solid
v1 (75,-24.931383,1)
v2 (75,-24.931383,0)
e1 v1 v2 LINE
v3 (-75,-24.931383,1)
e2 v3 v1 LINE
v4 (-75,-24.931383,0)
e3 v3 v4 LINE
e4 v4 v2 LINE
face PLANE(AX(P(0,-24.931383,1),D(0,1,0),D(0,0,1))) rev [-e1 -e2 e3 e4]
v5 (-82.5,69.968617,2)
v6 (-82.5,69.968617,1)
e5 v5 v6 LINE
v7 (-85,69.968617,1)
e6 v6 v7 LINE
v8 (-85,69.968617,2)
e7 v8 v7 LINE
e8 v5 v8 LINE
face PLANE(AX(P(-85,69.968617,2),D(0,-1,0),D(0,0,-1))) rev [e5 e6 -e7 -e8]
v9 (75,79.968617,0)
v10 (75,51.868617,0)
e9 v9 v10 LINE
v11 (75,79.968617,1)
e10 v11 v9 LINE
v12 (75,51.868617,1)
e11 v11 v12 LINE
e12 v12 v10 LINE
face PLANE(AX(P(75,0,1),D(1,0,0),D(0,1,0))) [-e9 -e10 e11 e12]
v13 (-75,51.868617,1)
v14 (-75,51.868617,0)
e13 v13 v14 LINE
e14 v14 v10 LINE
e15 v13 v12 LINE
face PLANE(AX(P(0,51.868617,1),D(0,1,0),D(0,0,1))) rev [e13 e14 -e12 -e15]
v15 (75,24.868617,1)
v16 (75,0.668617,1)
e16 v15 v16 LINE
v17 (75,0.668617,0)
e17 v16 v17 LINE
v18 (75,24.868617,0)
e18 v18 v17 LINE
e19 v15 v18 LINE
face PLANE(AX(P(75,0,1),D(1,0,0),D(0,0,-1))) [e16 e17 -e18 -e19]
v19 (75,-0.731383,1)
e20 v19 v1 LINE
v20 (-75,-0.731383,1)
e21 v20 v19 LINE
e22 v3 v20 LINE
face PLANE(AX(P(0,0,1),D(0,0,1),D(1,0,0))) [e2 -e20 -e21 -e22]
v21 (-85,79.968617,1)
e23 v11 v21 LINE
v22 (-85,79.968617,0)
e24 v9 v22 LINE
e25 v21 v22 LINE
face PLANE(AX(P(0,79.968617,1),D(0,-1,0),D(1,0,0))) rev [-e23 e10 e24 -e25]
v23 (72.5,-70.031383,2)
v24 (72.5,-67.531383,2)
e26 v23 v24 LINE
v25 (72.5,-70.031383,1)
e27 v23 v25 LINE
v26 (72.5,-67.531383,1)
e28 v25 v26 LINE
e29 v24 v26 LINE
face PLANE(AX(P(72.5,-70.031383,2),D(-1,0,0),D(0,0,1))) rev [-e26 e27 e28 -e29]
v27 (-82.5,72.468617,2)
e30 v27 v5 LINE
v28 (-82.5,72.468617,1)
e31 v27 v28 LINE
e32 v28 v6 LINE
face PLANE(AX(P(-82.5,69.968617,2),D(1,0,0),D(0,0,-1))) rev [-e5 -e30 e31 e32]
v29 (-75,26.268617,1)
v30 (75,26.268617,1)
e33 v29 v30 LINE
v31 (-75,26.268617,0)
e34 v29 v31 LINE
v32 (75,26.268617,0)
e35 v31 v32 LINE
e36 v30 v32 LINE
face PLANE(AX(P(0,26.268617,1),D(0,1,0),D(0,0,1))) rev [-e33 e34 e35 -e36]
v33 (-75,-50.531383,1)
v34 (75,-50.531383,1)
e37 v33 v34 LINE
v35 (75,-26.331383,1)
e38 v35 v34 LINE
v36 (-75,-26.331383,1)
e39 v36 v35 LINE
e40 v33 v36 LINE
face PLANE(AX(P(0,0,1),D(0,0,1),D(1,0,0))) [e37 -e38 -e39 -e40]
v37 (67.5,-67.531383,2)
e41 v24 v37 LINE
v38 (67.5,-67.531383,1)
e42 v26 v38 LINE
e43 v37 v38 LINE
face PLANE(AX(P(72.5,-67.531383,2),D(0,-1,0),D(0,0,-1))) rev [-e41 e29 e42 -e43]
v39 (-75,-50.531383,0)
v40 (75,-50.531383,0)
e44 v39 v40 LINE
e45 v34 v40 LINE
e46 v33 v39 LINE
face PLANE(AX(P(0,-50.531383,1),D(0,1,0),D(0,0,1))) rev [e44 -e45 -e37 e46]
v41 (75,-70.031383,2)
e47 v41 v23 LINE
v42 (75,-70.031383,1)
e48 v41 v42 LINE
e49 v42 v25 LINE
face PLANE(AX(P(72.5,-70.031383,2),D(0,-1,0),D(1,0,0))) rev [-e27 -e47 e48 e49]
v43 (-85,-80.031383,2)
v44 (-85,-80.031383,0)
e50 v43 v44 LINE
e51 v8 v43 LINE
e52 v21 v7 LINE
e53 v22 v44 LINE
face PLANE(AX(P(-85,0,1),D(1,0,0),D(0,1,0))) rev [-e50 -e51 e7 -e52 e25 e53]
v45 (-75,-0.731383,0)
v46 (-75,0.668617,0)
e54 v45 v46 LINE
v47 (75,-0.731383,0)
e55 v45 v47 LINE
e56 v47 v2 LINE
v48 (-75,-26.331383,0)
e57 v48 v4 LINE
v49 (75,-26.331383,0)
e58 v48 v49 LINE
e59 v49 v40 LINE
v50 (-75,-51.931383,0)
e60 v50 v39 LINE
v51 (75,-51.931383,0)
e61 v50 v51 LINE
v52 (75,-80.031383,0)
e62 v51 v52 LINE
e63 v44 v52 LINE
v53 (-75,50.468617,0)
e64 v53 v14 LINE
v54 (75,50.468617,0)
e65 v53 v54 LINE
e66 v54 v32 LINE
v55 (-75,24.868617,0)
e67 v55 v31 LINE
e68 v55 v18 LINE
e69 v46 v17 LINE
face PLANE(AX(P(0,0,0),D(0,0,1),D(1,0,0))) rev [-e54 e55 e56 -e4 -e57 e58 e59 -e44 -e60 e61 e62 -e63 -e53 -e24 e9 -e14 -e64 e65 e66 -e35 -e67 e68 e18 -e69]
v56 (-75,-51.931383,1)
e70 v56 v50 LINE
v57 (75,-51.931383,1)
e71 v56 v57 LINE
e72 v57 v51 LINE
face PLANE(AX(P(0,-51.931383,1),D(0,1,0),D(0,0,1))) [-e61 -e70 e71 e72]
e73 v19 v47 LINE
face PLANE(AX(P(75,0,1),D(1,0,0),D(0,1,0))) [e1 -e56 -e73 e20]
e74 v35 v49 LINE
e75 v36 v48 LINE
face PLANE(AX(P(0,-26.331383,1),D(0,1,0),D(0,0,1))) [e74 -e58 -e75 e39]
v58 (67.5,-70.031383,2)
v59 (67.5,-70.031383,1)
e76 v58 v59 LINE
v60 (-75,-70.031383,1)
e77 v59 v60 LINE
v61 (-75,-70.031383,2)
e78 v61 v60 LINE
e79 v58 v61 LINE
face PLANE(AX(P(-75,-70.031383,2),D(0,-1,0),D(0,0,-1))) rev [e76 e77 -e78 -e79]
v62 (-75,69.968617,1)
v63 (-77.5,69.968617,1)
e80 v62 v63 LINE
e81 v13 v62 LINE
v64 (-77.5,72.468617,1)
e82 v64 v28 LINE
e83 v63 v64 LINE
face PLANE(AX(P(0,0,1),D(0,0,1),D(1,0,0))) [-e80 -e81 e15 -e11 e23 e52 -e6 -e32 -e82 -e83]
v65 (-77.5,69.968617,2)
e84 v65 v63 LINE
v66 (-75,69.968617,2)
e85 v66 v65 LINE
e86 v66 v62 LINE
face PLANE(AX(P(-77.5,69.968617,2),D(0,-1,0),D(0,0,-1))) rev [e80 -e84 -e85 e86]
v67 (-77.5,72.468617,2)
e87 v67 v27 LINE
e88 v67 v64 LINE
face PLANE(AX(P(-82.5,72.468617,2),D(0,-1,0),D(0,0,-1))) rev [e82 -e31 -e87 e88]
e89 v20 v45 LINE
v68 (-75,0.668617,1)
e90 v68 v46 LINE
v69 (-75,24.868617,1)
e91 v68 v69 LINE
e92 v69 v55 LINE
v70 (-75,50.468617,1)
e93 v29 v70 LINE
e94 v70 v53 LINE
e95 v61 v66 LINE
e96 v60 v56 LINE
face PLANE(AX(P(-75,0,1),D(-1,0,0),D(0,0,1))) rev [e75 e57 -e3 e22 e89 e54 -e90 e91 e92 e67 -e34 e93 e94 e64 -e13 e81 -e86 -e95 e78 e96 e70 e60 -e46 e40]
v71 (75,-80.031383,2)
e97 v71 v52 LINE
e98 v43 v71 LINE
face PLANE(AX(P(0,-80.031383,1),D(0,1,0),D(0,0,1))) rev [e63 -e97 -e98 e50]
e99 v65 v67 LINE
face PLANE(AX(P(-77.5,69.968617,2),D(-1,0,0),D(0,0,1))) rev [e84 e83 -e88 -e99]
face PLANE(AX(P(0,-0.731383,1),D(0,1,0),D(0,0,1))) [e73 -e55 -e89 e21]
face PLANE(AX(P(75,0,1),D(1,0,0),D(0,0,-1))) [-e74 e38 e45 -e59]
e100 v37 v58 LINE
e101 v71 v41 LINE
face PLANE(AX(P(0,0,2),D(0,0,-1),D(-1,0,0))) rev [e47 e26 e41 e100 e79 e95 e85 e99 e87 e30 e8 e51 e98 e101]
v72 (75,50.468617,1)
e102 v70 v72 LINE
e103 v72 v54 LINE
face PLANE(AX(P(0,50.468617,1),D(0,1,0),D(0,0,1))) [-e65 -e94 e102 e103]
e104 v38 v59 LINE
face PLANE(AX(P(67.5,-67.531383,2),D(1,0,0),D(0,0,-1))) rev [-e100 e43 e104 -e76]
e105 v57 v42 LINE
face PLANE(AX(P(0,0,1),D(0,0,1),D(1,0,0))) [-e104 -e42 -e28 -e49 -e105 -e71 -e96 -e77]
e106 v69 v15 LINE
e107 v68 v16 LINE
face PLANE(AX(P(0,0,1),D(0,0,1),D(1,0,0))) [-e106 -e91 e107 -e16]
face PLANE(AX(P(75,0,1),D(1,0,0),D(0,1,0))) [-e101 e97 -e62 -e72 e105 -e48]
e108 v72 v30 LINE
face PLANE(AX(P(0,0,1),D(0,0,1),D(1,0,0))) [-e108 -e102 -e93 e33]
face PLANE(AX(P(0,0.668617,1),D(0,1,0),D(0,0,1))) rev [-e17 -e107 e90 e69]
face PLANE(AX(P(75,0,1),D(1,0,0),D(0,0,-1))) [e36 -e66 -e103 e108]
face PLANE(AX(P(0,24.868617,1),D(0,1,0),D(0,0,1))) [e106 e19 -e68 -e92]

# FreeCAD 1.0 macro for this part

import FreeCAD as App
import Part
import Sketcher

V = App.Vector

doc = App.newDocument("Part")
body = doc.addObject("PartDesign::Body", "Body")

sketch1 = body.newObject("Sketcher::SketchObject", "Sketch")
sketch1.AttachmentSupport = (doc.getObject("XY_Plane"), [""])
sketch1.MapMode = "FlatFace"
sketch1.addGeometry([
    Part.LineSegment(V(-75, 50.5, 0), V(-75, 51.9, 0)),
    Part.LineSegment(V(-75, 51.9, 0), V(75, 51.9, 0)),
    Part.LineSegment(V(75, 51.9, 0), V(75, 80, 0)),
    Part.LineSegment(V(75, 80, 0), V(-85, 80, 0)),
    Part.LineSegment(V(-85, 80, 0), V(-85, -80, 0)),
    Part.LineSegment(V(-85, -80, 0), V(75, -80, 0)),
    Part.LineSegment(V(75, -80, 0), V(75, -51.9, 0)),
    Part.LineSegment(V(75, -51.9, 0), V(-75, -51.9, 0)),
    Part.LineSegment(V(-75, -51.9, 0), V(-75, -50.5, 0)),
    Part.LineSegment(V(-75, -50.5, 0), V(75, -50.5, 0)),
    Part.LineSegment(V(75, -50.5, 0), V(75, -26.3, 0)),
    Part.LineSegment(V(75, -26.3, 0), V(-75, -26.3, 0)),
    Part.LineSegment(V(-75, -26.3, 0), V(-75, -24.9, 0)),
    Part.LineSegment(V(-75, -24.9, 0), V(75, -24.9, 0)),
    Part.LineSegment(V(75, -24.9, 0), V(75, -0.7, 0)),
    Part.LineSegment(V(75, -0.7, 0), V(-75, -0.7, 0)),
    Part.LineSegment(V(-75, -0.7, 0), V(-75, 0.7, 0)),
    Part.LineSegment(V(-75, 0.7, 0), V(75, 0.7, 0)),
    Part.LineSegment(V(75, 0.7, 0), V(75, 24.9, 0)),
    Part.LineSegment(V(75, 24.9, 0), V(-75, 24.9, 0)),
    Part.LineSegment(V(-75, 24.9, 0), V(-75, 26.3, 0)),
    Part.LineSegment(V(-75, 26.3, 0), V(75, 26.3, 0)),
    Part.LineSegment(V(75, 26.3, 0), V(75, 50.5, 0)),
    Part.LineSegment(V(75, 50.5, 0), V(-75, 50.5, 0)),
], False)
sketch1.addConstraint([
    Sketcher.Constraint("Coincident", 0, 2, 1, 1),
    Sketcher.Constraint("Coincident", 1, 2, 2, 1),
    Sketcher.Constraint("Coincident", 2, 2, 3, 1),
    Sketcher.Constraint("Coincident", 3, 2, 4, 1),
    Sketcher.Constraint("Coincident", 4, 2, 5, 1),
    Sketcher.Constraint("Coincident", 5, 2, 6, 1),
    Sketcher.Constraint("Coincident", 6, 2, 7, 1),
    Sketcher.Constraint("Coincident", 7, 2, 8, 1),
    Sketcher.Constraint("Coincident", 8, 2, 9, 1),
    Sketcher.Constraint("Coincident", 9, 2, 10, 1),
    Sketcher.Constraint("Coincident", 10, 2, 11, 1),
    Sketcher.Constraint("Coincident", 11, 2, 12, 1),
    Sketcher.Constraint("Coincident", 12, 2, 13, 1),
    Sketcher.Constraint("Coincident", 13, 2, 14, 1),
    Sketcher.Constraint("Coincident", 14, 2, 15, 1),
    Sketcher.Constraint("Coincident", 15, 2, 16, 1),
    Sketcher.Constraint("Coincident", 16, 2, 17, 1),
    Sketcher.Constraint("Coincident", 17, 2, 18, 1),
    Sketcher.Constraint("Coincident", 18, 2, 19, 1),
    Sketcher.Constraint("Coincident", 19, 2, 20, 1),
    Sketcher.Constraint("Coincident", 20, 2, 21, 1),
    Sketcher.Constraint("Coincident", 21, 2, 22, 1),
    Sketcher.Constraint("Coincident", 22, 2, 23, 1),
    Sketcher.Constraint("Coincident", 23, 2, 0, 1),
    Sketcher.Constraint("Vertical", 0),
    Sketcher.Constraint("Horizontal", 1),
    Sketcher.Constraint("Vertical", 2),
    Sketcher.Constraint("Horizontal", 3),
    Sketcher.Constraint("Vertical", 4),
    Sketcher.Constraint("Horizontal", 5),
    Sketcher.Constraint("Vertical", 6),
    Sketcher.Constraint("Horizontal", 7),
    Sketcher.Constraint("Vertical", 8),
    Sketcher.Constraint("Horizontal", 9),
    Sketcher.Constraint("Vertical", 10),
    Sketcher.Constraint("Horizontal", 11),
    Sketcher.Constraint("Vertical", 12),
    Sketcher.Constraint("Horizontal", 13),
    Sketcher.Constraint("Vertical", 14),
    Sketcher.Constraint("Horizontal", 15),
    Sketcher.Constraint("Vertical", 16),
    Sketcher.Constraint("Horizontal", 17),
    Sketcher.Constraint("Vertical", 18),
    Sketcher.Constraint("Horizontal", 19),
    Sketcher.Constraint("Vertical", 20),
    Sketcher.Constraint("Horizontal", 21),
    Sketcher.Constraint("Vertical", 22),
    Sketcher.Constraint("Horizontal", 23),
    Sketcher.Constraint("Vertical", 2, 2, 5, 2),
    Sketcher.Constraint("Vertical", 0, 2, 7, 2),
    Sketcher.Constraint("Vertical", 6, 2, 9, 2),
    Sketcher.Constraint("Vertical", 8, 2, 11, 2),
    Sketcher.Constraint("Vertical", 10, 2, 13, 2),
    Sketcher.Constraint("Vertical", 12, 2, 15, 2),
    Sketcher.Constraint("Vertical", 14, 2, 17, 2),
    Sketcher.Constraint("Vertical", 16, 2, 19, 2),
    Sketcher.Constraint("Vertical", 18, 2, 21, 2),
    Sketcher.Constraint("Equal", 5, 4),
    Sketcher.Constraint("Equal", 2, 6),
    Sketcher.Constraint("Equal", 0, 8),
    Sketcher.Constraint("Equal", 8, 12),
    Sketcher.Constraint("Equal", 10, 14),
    Sketcher.Constraint("Equal", 12, 16),
    Sketcher.Constraint("Equal", 14, 18),
    Sketcher.Constraint("Equal", 16, 20),
    Sketcher.Constraint("Equal", 18, 22),
    Sketcher.Constraint("DistanceX", 1, 1, 1, 2, 150.0),
    Sketcher.Constraint("DistanceX", 3, 2, 3, 1, 160.0),
    Sketcher.Constraint("DistanceY", 0, 1, 0, 2, 1.4),
    Sketcher.Constraint("DistanceY", 2, 1, 2, 2, 28.1),
    Sketcher.Constraint("DistanceX", 0, 2, -1, 1, 75.0),
    Sketcher.Constraint("DistanceY", -1, 1, 0, 2, 51.868617),
])
pad1 = body.newObject("PartDesign::Pad", "Pad")
pad1.Profile = sketch1
pad1.Length = 1

sketch2 = body.newObject("Sketcher::SketchObject", "Sketch001")
sketch2.AttachmentSupport = (doc.getObject("XY_Plane"), [""])
sketch2.MapMode = "FlatFace"
sketch2.AttachmentOffset = App.Placement(V(0, 0, 1), App.Rotation())
sketch2.addGeometry([
    Part.LineSegment(V(-85, 70, 0), V(-85, -80, 0)),
    Part.LineSegment(V(-85, -80, 0), V(75, -80, 0)),
    Part.LineSegment(V(75, -80, 0), V(75, -70, 0)),
    Part.LineSegment(V(75, -70, 0), V(72.5, -70, 0)),
    Part.LineSegment(V(72.5, -70, 0), V(72.5, -67.5, 0)),
    Part.LineSegment(V(72.5, -67.5, 0), V(67.5, -67.5, 0)),
    Part.LineSegment(V(67.5, -67.5, 0), V(67.5, -70, 0)),
    Part.LineSegment(V(67.5, -70, 0), V(-75, -70, 0)),
    Part.LineSegment(V(-75, -70, 0), V(-75, 70, 0)),
    Part.LineSegment(V(-75, 70, 0), V(-77.5, 70, 0)),
    Part.LineSegment(V(-77.5, 70, 0), V(-77.5, 72.5, 0)),
    Part.LineSegment(V(-77.5, 72.5, 0), V(-82.5, 72.5, 0)),
    Part.LineSegment(V(-82.5, 72.5, 0), V(-82.5, 70, 0)),
    Part.LineSegment(V(-82.5, 70, 0), V(-85, 70, 0)),
], False)
sketch2.addConstraint([
    Sketcher.Constraint("Coincident", 0, 2, 1, 1),
    Sketcher.Constraint("Coincident", 1, 2, 2, 1),
    Sketcher.Constraint("Coincident", 2, 2, 3, 1),
    Sketcher.Constraint("Coincident", 3, 2, 4, 1),
    Sketcher.Constraint("Coincident", 4, 2, 5, 1),
    Sketcher.Constraint("Coincident", 5, 2, 6, 1),
    Sketcher.Constraint("Coincident", 6, 2, 7, 1),
    Sketcher.Constraint("Coincident", 7, 2, 8, 1),
    Sketcher.Constraint("Coincident", 8, 2, 9, 1),
    Sketcher.Constraint("Coincident", 9, 2, 10, 1),
    Sketcher.Constraint("Coincident", 10, 2, 11, 1),
    Sketcher.Constraint("Coincident", 11, 2, 12, 1),
    Sketcher.Constraint("Coincident", 12, 2, 13, 1),
    Sketcher.Constraint("Coincident", 13, 2, 0, 1),
    Sketcher.Constraint("Vertical", 0),
    Sketcher.Constraint("Horizontal", 1),
    Sketcher.Constraint("Vertical", 2),
    Sketcher.Constraint("Horizontal", 3),
    Sketcher.Constraint("Vertical", 4),
    Sketcher.Constraint("Horizontal", 5),
    Sketcher.Constraint("Vertical", 6),
    Sketcher.Constraint("Horizontal", 7),
    Sketcher.Constraint("Vertical", 8),
    Sketcher.Constraint("Horizontal", 9),
    Sketcher.Constraint("Vertical", 10),
    Sketcher.Constraint("Horizontal", 11),
    Sketcher.Constraint("Vertical", 12),
    Sketcher.Constraint("Horizontal", 13),
    Sketcher.Constraint("Symmetric", 2, 2, 7, 2, -2),
    Sketcher.Constraint("Horizontal", 9, 2, 12, 2),
    Sketcher.Constraint("Equal", 3, 9),
    Sketcher.Constraint("Equal", 5, 11),
    Sketcher.Constraint("Equal", 9, 13),
    Sketcher.Constraint("Equal", 13, 4),
    Sketcher.Constraint("Equal", 6, 10),
    Sketcher.Constraint("DistanceX", 1, 1, 1, 2, 160.0),
    Sketcher.Constraint("DistanceX", 5, 2, 5, 1, 5.0),
    Sketcher.Constraint("DistanceY", 0, 2, 0, 1, 150.0),
    Sketcher.Constraint("DistanceY", 2, 1, 2, 2, 10.0),
    Sketcher.Constraint("DistanceX", 3, 2, 3, 1, 2.5),
    Sketcher.Constraint("DistanceY", 0, 2, -1, 1, 80.031383),
])
pad2 = body.newObject("PartDesign::Pad", "Pad001")
pad2.Profile = sketch2
pad2.Length = 1

doc.recompute()
